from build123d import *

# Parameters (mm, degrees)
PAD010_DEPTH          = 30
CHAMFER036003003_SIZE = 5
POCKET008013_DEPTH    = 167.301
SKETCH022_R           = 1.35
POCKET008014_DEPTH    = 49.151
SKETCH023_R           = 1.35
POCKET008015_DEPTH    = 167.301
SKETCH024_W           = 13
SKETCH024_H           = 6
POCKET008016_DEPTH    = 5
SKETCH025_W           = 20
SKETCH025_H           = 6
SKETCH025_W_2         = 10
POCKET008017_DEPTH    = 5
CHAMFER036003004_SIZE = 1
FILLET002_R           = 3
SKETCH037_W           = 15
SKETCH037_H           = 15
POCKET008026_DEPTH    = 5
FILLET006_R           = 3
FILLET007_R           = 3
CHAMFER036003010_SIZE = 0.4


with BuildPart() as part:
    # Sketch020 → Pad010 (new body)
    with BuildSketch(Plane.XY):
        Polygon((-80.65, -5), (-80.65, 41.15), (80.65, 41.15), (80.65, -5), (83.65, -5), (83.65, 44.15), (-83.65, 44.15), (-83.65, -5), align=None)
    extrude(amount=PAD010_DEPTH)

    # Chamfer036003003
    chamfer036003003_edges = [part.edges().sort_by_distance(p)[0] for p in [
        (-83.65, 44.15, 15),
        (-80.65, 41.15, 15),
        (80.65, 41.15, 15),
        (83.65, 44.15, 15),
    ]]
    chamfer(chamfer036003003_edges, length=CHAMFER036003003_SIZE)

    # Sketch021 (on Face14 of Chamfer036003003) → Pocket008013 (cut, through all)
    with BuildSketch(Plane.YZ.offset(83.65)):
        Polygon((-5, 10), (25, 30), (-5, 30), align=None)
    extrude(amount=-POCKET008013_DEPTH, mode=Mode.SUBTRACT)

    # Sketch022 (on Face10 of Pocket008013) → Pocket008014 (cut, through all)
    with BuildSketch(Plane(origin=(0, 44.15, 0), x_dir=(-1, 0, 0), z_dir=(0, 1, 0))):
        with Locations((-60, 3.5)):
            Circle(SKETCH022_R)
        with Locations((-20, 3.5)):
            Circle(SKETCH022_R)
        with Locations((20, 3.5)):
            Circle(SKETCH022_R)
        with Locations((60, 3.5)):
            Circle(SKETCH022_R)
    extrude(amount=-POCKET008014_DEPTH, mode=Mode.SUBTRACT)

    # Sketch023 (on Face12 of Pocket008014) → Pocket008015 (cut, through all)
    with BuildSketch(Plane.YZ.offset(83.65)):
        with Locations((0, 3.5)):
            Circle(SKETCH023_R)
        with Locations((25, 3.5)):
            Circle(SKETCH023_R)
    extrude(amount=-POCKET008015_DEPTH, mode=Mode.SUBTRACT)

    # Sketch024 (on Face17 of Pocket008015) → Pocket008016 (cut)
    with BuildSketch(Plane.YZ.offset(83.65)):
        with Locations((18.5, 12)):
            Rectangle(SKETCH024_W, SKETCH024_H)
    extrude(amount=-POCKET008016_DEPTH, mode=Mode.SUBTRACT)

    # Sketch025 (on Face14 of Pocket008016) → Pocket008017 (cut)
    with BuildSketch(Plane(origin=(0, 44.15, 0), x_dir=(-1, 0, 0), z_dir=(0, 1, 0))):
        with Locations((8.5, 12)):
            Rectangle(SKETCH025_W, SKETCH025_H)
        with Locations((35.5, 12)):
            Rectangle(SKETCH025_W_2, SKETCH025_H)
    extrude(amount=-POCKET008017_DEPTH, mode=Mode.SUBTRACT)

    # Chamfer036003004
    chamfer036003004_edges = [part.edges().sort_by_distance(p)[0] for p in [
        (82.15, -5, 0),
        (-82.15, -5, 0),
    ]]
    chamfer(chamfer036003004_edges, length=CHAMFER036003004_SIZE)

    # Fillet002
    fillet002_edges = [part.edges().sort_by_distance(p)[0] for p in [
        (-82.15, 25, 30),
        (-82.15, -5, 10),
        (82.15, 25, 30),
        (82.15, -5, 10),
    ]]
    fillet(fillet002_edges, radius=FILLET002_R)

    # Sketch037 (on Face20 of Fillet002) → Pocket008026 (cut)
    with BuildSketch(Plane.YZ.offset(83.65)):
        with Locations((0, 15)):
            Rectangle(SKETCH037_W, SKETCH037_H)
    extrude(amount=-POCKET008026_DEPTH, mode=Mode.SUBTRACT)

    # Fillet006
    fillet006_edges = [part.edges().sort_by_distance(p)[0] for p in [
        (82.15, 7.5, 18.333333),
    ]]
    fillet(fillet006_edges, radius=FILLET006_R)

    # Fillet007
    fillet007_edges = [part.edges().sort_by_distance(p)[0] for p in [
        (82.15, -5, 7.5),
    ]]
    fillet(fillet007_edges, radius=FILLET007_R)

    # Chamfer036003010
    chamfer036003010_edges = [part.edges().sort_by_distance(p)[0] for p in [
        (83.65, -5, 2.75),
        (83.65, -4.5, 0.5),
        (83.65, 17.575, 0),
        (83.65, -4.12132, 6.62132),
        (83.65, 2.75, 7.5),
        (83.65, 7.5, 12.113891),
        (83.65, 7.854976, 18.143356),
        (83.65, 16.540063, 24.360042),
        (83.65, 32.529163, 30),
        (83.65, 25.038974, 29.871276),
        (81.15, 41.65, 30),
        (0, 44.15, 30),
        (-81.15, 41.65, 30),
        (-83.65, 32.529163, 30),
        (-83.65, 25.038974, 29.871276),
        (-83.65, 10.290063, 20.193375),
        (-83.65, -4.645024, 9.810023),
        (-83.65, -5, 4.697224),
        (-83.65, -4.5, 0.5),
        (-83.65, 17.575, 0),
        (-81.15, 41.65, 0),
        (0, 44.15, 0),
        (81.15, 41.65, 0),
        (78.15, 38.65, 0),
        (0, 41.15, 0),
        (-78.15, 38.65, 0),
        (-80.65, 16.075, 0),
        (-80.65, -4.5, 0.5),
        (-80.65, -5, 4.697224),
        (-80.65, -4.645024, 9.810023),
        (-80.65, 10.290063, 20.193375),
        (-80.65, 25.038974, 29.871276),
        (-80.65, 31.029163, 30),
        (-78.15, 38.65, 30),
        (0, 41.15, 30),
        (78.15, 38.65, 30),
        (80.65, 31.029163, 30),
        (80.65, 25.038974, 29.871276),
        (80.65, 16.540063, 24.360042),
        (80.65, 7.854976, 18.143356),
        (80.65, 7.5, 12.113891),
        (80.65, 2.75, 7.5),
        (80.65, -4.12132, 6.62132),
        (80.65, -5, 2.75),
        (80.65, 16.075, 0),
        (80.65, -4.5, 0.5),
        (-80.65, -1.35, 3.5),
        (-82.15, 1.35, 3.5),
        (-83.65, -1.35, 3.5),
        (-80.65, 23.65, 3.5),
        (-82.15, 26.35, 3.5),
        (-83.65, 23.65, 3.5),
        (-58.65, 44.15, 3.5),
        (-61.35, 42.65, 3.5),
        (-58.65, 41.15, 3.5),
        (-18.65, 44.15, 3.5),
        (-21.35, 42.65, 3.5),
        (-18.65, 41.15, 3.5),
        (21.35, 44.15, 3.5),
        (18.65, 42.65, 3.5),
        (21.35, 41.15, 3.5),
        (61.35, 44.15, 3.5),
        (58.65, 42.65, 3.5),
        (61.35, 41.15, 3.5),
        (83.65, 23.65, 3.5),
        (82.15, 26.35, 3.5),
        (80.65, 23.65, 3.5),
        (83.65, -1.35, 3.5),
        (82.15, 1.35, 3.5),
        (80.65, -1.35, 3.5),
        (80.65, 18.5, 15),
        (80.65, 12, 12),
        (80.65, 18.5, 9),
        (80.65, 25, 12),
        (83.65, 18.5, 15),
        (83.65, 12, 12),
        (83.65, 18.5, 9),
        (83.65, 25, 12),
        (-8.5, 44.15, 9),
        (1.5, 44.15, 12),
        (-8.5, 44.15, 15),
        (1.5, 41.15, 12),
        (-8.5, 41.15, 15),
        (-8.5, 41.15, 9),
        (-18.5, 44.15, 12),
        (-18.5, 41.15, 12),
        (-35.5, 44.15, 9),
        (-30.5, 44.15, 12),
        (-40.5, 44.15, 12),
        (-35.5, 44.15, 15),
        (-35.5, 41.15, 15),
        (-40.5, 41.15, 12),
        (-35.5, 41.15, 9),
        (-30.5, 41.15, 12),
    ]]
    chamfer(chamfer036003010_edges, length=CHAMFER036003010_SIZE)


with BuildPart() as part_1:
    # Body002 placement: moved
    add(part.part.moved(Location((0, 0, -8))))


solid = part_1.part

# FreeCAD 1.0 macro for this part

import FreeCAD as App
import Part
import Sketcher

V = App.Vector
Q = App.Units.Quantity


def edges_at(feature, points):
    """Names of the edges that pass closest to the given points."""
    edges = feature.Shape.Edges
    near = lambda p: min(range(len(edges)), key=lambda i: edges[i].distToShape(Part.Vertex(*p))[0])
    return sorted({f"Edge{near(p) + 1}" for p in points})

doc = App.newDocument("Part")
body = doc.addObject("PartDesign::Body", "Body")

sketch1 = body.newObject("Sketcher::SketchObject", "Sketch")
sketch1.AttachmentSupport = (doc.getObject("XY_Plane"), [""])
sketch1.MapMode = "FlatFace"
sketch1.addGeometry([
    Part.LineSegment(V(-80.7, -5, 0), V(-80.7, 41.1, 0)),
    Part.LineSegment(V(-80.7, 41.1, 0), V(80.7, 41.1, 0)),
    Part.LineSegment(V(80.7, 41.1, 0), V(80.7, -5, 0)),
    Part.LineSegment(V(80.7, -5, 0), V(83.7, -5, 0)),
    Part.LineSegment(V(83.7, -5, 0), V(83.7, 44.1, 0)),
    Part.LineSegment(V(83.7, 44.1, 0), V(-83.7, 44.1, 0)),
    Part.LineSegment(V(-83.7, 44.1, 0), V(-83.7, -5, 0)),
    Part.LineSegment(V(-83.7, -5, 0), V(-80.7, -5, 0)),
], False)
sketch1.addConstraint([
    Sketcher.Constraint("Coincident", 0, 2, 1, 1),
    Sketcher.Constraint("Coincident", 1, 2, 2, 1),
    Sketcher.Constraint("Coincident", 2, 2, 3, 1),
    Sketcher.Constraint("Coincident", 3, 2, 4, 1),
    Sketcher.Constraint("Coincident", 4, 2, 5, 1),
    Sketcher.Constraint("Coincident", 5, 2, 6, 1),
    Sketcher.Constraint("Coincident", 6, 2, 7, 1),
    Sketcher.Constraint("Coincident", 7, 2, 0, 1),
    Sketcher.Constraint("Vertical", 0),
    Sketcher.Constraint("Horizontal", 1),
    Sketcher.Constraint("Vertical", 2),
    Sketcher.Constraint("Horizontal", 3),
    Sketcher.Constraint("Vertical", 4),
    Sketcher.Constraint("Horizontal", 5),
    Sketcher.Constraint("Vertical", 6),
    Sketcher.Constraint("Horizontal", 7),
    Sketcher.Constraint("Symmetric", 3, 2, 6, 2, -2),
    Sketcher.Constraint("Equal", 3, 7),
    Sketcher.Constraint("DistanceX", 3, 1, 3, 2, Q("3 mm")),
    Sketcher.Constraint("DistanceX", 1, 1, 1, 2, Q("161.3 mm")),
    Sketcher.Constraint("DistanceY", 2, 2, -1, 1, Q("5 mm")),
    Sketcher.Constraint("DistanceY", 1, 2, 4, 2, Q("3 mm")),
    Sketcher.Constraint("DistanceY", 0, 1, 0, 2, Q("46.15 mm")),
])
pad1 = body.newObject("PartDesign::Pad", "Pad")
pad1.Profile = sketch1
pad1.Length = 30
doc.recompute()

chamfer = body.newObject("PartDesign::Chamfer", "Chamfer")
chamfer.Base = (pad1, edges_at(pad1, [
    (-83.65, 44.15, 15),
    (-80.65, 41.15, 15),
    (80.65, 41.15, 15),
    (83.65, 44.15, 15),
]))
chamfer.Size = 5

sketch2 = body.newObject("Sketcher::SketchObject", "Sketch001")
sketch2.AttachmentSupport = (doc.getObject("YZ_Plane"), [""])
sketch2.MapMode = "FlatFace"
sketch2.AttachmentOffset = App.Placement(V(0, 0, 83.65), App.Rotation())
sketch2.addGeometry([
    Part.LineSegment(V(-5, 10, 0), V(25, 30, 0)),
    Part.LineSegment(V(25, 30, 0), V(-5, 30, 0)),
    Part.LineSegment(V(-5, 30, 0), V(-5, 10, 0)),
], False)
sketch2.addConstraint([
    Sketcher.Constraint("Coincident", 0, 2, 1, 1),
    Sketcher.Constraint("Coincident", 1, 2, 2, 1),
    Sketcher.Constraint("Coincident", 2, 2, 0, 1),
    Sketcher.Constraint("Horizontal", 1),
    Sketcher.Constraint("Vertical", 2),
    Sketcher.Constraint("DistanceX", 1, 2, 1, 1, Q("30 mm")),
    Sketcher.Constraint("DistanceY", 2, 2, 2, 1, Q("20 mm")),
    Sketcher.Constraint("DistanceX", -1, 1, 0, 2, Q("25 mm")),
    Sketcher.Constraint("DistanceY", -1, 1, 0, 2, Q("30 mm")),
])
pocket1 = body.newObject("PartDesign::Pocket", "Pocket")
pocket1.Profile = sketch2
pocket1.Type = "ThroughAll"

sketch3 = body.newObject("Sketcher::SketchObject", "Sketch002")
sketch3.AttachmentSupport = (doc.getObject("XZ_Plane"), [""])
sketch3.MapMode = "FlatFace"
sketch3.AttachmentOffset = App.Placement(V(0, 0, -44.15), App.Rotation())
sketch3.addGeometry([
    Part.Circle(V(60, 3.5, 0), V(0, 0, 1), 1.4),
    Part.Circle(V(20, 3.5, 0), V(0, 0, 1), 1.4),
    Part.Circle(V(-20, 3.5, 0), V(0, 0, 1), 1.4),
    Part.Circle(V(-60, 3.5, 0), V(0, 0, 1), 1.4),
], False)
sketch3.addConstraint([
    Sketcher.Constraint("Equal", 0, 1),
    Sketcher.Constraint("Equal", 1, 2),
    Sketcher.Constraint("Equal", 2, 3),
    Sketcher.Constraint("Symmetric", 1, 3, 2, 3, -2),
    Sketcher.Constraint("Symmetric", 0, 3, 3, 3, -2),
    Sketcher.Constraint("Horizontal", 0, 3, 1, 3),
    Sketcher.Constraint("Diameter", 0, Q("2.7 mm")),
    Sketcher.Constraint("DistanceX", -1, 1, 0, 3, Q("60 mm")),
    Sketcher.Constraint("DistanceX", -1, 1, 1, 3, Q("20 mm")),
    Sketcher.Constraint("DistanceY", -1, 1, 0, 3, Q("3.5 mm")),
])
pocket2 = body.newObject("PartDesign::Pocket", "Pocket001")
pocket2.Profile = sketch3
pocket2.Type = "ThroughAll"
pocket2.Reversed = True

sketch4 = body.newObject("Sketcher::SketchObject", "Sketch003")
sketch4.AttachmentSupport = (doc.getObject("YZ_Plane"), [""])
sketch4.MapMode = "FlatFace"
sketch4.AttachmentOffset = App.Placement(V(0, 0, 83.65), App.Rotation())
sketch4.addGeometry([
    Part.Circle(V(0, 3.5, 0), V(0, 0, 1), 1.4),
    Part.Circle(V(25, 3.5, 0), V(0, 0, 1), 1.4),
], False)
sketch4.addConstraint([
    Sketcher.Constraint("Equal", 0, 1),
    Sketcher.Constraint("PointOnObject", 0, 3, -2),
    Sketcher.Constraint("Horizontal", 0, 3, 1, 3),
    Sketcher.Constraint("Diameter", 0, Q("2.7 mm")),
    Sketcher.Constraint("DistanceX", -1, 1, 1, 3, Q("25 mm")),
    Sketcher.Constraint("DistanceY", -1, 1, 0, 3, Q("3.5 mm")),
])
pocket3 = body.newObject("PartDesign::Pocket", "Pocket002")
pocket3.Profile = sketch4
pocket3.Type = "ThroughAll"

sketch5 = body.newObject("Sketcher::SketchObject", "Sketch004")
sketch5.AttachmentSupport = (doc.getObject("YZ_Plane"), [""])
sketch5.MapMode = "FlatFace"
sketch5.AttachmentOffset = App.Placement(V(0, 0, 83.65), App.Rotation())
sketch5.addGeometry([
    Part.LineSegment(V(12, 15, 0), V(12, 9, 0)),
    Part.LineSegment(V(12, 9, 0), V(25, 9, 0)),
    Part.LineSegment(V(25, 9, 0), V(25, 15, 0)),
    Part.LineSegment(V(25, 15, 0), V(12, 15, 0)),
], False)
sketch5.addConstraint([
    Sketcher.Constraint("Coincident", 0, 2, 1, 1),
    Sketcher.Constraint("Coincident", 1, 2, 2, 1),
    Sketcher.Constraint("Coincident", 2, 2, 3, 1),
    Sketcher.Constraint("Coincident", 3, 2, 0, 1),
    Sketcher.Constraint("Vertical", 0),
    Sketcher.Constraint("Horizontal", 1),
    Sketcher.Constraint("Vertical", 2),
    Sketcher.Constraint("Horizontal", 3),
    Sketcher.Constraint("DistanceX", 1, 1, 1, 2, Q("13 mm")),
    Sketcher.Constraint("DistanceY", 0, 2, 0, 1, Q("6 mm")),
    Sketcher.Constraint("DistanceX", -1, 1, 0, 2, Q("12 mm")),
    Sketcher.Constraint("DistanceY", -1, 1, 0, 2, Q("9 mm")),
])
pocket4 = body.newObject("PartDesign::Pocket", "Pocket003")
pocket4.Profile = sketch5
pocket4.Length = 5

sketch6 = body.newObject("Sketcher::SketchObject", "Sketch005")
sketch6.AttachmentSupport = (doc.getObject("XZ_Plane"), [""])
sketch6.MapMode = "FlatFace"
sketch6.AttachmentOffset = App.Placement(V(0, 0, -44.15), App.Rotation())
sketch6.addGeometry([
    Part.LineSegment(V(2, 15, 0), V(2, 9, 0)),
    Part.LineSegment(V(2, 9, 0), V(-18, 9, 0)),
    Part.LineSegment(V(-18, 9, 0), V(-18, 15, 0)),
    Part.LineSegment(V(-18, 15, 0), V(2, 15, 0)),
    Part.LineSegment(V(-30, 15, 0), V(-30, 9, 0)),
    Part.LineSegment(V(-30, 9, 0), V(-40, 9, 0)),
    Part.LineSegment(V(-40, 9, 0), V(-40, 15, 0)),
    Part.LineSegment(V(-40, 15, 0), V(-30, 15, 0)),
], False)
sketch6.addConstraint([
    Sketcher.Constraint("Coincident", 0, 2, 1, 1),
    Sketcher.Constraint("Coincident", 1, 2, 2, 1),
    Sketcher.Constraint("Coincident", 2, 2, 3, 1),
    Sketcher.Constraint("Coincident", 3, 2, 0, 1),
    Sketcher.Constraint("Coincident", 4, 2, 5, 1),
    Sketcher.Constraint("Coincident", 5, 2, 6, 1),
    Sketcher.Constraint("Coincident", 6, 2, 7, 1),
    Sketcher.Constraint("Coincident", 7, 2, 4, 1),
    Sketcher.Constraint("Vertical", 0),
    Sketcher.Constraint("Horizontal", 1),
    Sketcher.Constraint("Vertical", 2),
    Sketcher.Constraint("Horizontal", 3),
    Sketcher.Constraint("Vertical", 4),
    Sketcher.Constraint("Horizontal", 5),
    Sketcher.Constraint("Vertical", 6),
    Sketcher.Constraint("Horizontal", 7),
    Sketcher.Constraint("Horizontal", 1, 2, 4, 2),
    Sketcher.Constraint("Horizontal", 3, 2, 6, 2),
    Sketcher.Constraint("DistanceX", 1, 2, 1, 1, Q("20 mm")),
    Sketcher.Constraint("DistanceX", 5, 2, 5, 1, Q("10 mm")),
    Sketcher.Constraint("DistanceY", 0, 2, 0, 1, Q("6 mm")),
    Sketcher.Constraint("DistanceY", -1, 1, 0, 2, Q("9 mm")),
    Sketcher.Constraint("DistanceX", 4, 2, 1, 2, Q("12 mm")),
    Sketcher.Constraint("DistanceX", -1, 1, 0, 2, Q("1.5 mm")),
])
pocket5 = body.newObject("PartDesign::Pocket", "Pocket004")
pocket5.Profile = sketch6
pocket5.Length = 5
pocket5.Reversed = True
doc.recompute()

chamfer2 = body.newObject("PartDesign::Chamfer", "Chamfer001")
chamfer2.Base = (pocket5, edges_at(pocket5, [(82.15, -5, 0), (-82.15, -5, 0)]))
chamfer2.Size = 1
doc.recompute()

fillet = body.newObject("PartDesign::Fillet", "Fillet")
fillet.Base = (chamfer2, edges_at(chamfer2, [
    (-82.15, 25, 30),
    (-82.15, -5, 10),
    (82.15, 25, 30),
    (82.15, -5, 10),
]))
fillet.Radius = 3

sketch7 = body.newObject("Sketcher::SketchObject", "Sketch006")
sketch7.AttachmentSupport = (doc.getObject("YZ_Plane"), [""])
sketch7.MapMode = "FlatFace"
sketch7.AttachmentOffset = App.Placement(V(0, 0, 83.65), App.Rotation())
sketch7.addGeometry([
    Part.LineSegment(V(-8, 22, 0), V(-8, 8, 0)),
    Part.LineSegment(V(-8, 8, 0), V(8, 8, 0)),
    Part.LineSegment(V(8, 8, 0), V(8, 22, 0)),
    Part.LineSegment(V(8, 22, 0), V(-8, 22, 0)),
], False)
sketch7.addConstraint([
    Sketcher.Constraint("Coincident", 0, 2, 1, 1),
    Sketcher.Constraint("Coincident", 1, 2, 2, 1),
    Sketcher.Constraint("Coincident", 2, 2, 3, 1),
    Sketcher.Constraint("Coincident", 3, 2, 0, 1),
    Sketcher.Constraint("Vertical", 0),
    Sketcher.Constraint("Horizontal", 1),
    Sketcher.Constraint("Vertical", 2),
    Sketcher.Constraint("Horizontal", 3),
    Sketcher.Constraint("Equal", 3, 0),
    Sketcher.Constraint("DistanceX", 1, 1, 1, 2, Q("15 mm")),
    Sketcher.Constraint("DistanceX", 0, 2, -1, 1, Q("7.5 mm")),
    Sketcher.Constraint("DistanceY", -1, 1, 0, 2, Q("7.5 mm")),
])
pocket6 = body.newObject("PartDesign::Pocket", "Pocket005")
pocket6.Profile = sketch7
pocket6.Length = 5
doc.recompute()

fillet2 = body.newObject("PartDesign::Fillet", "Fillet001")
fillet2.Base = (pocket6, edges_at(pocket6, [(82.15, 7.5, 18.333)]))
fillet2.Radius = 3
doc.recompute()

fillet3 = body.newObject("PartDesign::Fillet", "Fillet002")
fillet3.Base = (fillet2, edges_at(fillet2, [(82.15, -5, 7.5)]))
fillet3.Radius = 3
doc.recompute()

chamfer3 = body.newObject("PartDesign::Chamfer", "Chamfer002")
chamfer3.Base = (fillet3, edges_at(fillet3, [
    (83.65, -5, 2.75),
    (83.65, -4.5, 0.5),
    (83.65, 17.575, 0),
    (83.65, -4.121, 6.621),
    (83.65, 2.75, 7.5),
    (83.65, 7.5, 12.114),
    (83.65, 7.855, 18.143),
    (83.65, 16.54, 24.36),
    (83.65, 32.529, 30),
    (83.65, 25.039, 29.871),
    (81.15, 41.65, 30),
    (0, 44.15, 30),
    (-81.15, 41.65, 30),
    (-83.65, 32.529, 30),
    (-83.65, 25.039, 29.871),
    (-83.65, 10.29, 20.193),
    (-83.65, -4.645, 9.81),
    (-83.65, -5, 4.697),
    (-83.65, -4.5, 0.5),
    (-83.65, 17.575, 0),
    (-81.15, 41.65, 0),
    (0, 44.15, 0),
    (81.15, 41.65, 0),
    (78.15, 38.65, 0),
    (0, 41.15, 0),
    (-78.15, 38.65, 0),
    (-80.65, 16.075, 0),
    (-80.65, -4.5, 0.5),
    (-80.65, -5, 4.697),
    (-80.65, -4.645, 9.81),
    (-80.65, 10.29, 20.193),
    (-80.65, 25.039, 29.871),
    (-80.65, 31.029, 30),
    (-78.15, 38.65, 30),
    (0, 41.15, 30),
    (78.15, 38.65, 30),
    (80.65, 31.029, 30),
    (80.65, 25.039, 29.871),
    (80.65, 16.54, 24.36),
    (80.65, 7.855, 18.143),
    (80.65, 7.5, 12.114),
    (80.65, 2.75, 7.5),
    (80.65, -4.121, 6.621),
    (80.65, -5, 2.75),
    (80.65, 16.075, 0),
    (80.65, -4.5, 0.5),
    (-80.65, -1.35, 3.5),
    (-82.15, 1.35, 3.5),
    (-83.65, -1.35, 3.5),
    (-80.65, 23.65, 3.5),
    (-82.15, 26.35, 3.5),
    (-83.65, 23.65, 3.5),
    (-58.65, 44.15, 3.5),
    (-61.35, 42.65, 3.5),
    (-58.65, 41.15, 3.5),
    (-18.65, 44.15, 3.5),
    (-21.35, 42.65, 3.5),
    (-18.65, 41.15, 3.5),
    (21.35, 44.15, 3.5),
    (18.65, 42.65, 3.5),
    (21.35, 41.15, 3.5),
    (61.35, 44.15, 3.5),
    (58.65, 42.65, 3.5),
    (61.35, 41.15, 3.5),
    (83.65, 23.65, 3.5),
    (82.15, 26.35, 3.5),
    (80.65, 23.65, 3.5),
    (83.65, -1.35, 3.5),
    (82.15, 1.35, 3.5),
    (80.65, -1.35, 3.5),
    (80.65, 18.5, 15),
    (80.65, 12, 12),
    (80.65, 18.5, 9),
    (80.65, 25, 12),
    (83.65, 18.5, 15),
    (83.65, 12, 12),
    (83.65, 18.5, 9),
    (83.65, 25, 12),
    (-8.5, 44.15, 9),
    (1.5, 44.15, 12),
    (-8.5, 44.15, 15),
    (1.5, 41.15, 12),
    (-8.5, 41.15, 15),
    (-8.5, 41.15, 9),
    (-18.5, 44.15, 12),
    (-18.5, 41.15, 12),
    (-35.5, 44.15, 9),
    (-30.5, 44.15, 12),
    (-40.5, 44.15, 12),
    (-35.5, 44.15, 15),
    (-35.5, 41.15, 15),
    (-40.5, 41.15, 12),
    (-35.5, 41.15, 9),
    (-30.5, 41.15, 12),
]))
chamfer3.Size = 0.4
body2 = doc.addObject("PartDesign::Body", "Body001")
doc.recompute()

body.Placement = App.Placement(V(0, 0, -8), App.Rotation(V(0, 0, 1), 0))
boolean = body2.newObject("PartDesign::Boolean", "Boolean")
boolean.Type = "Fuse"
boolean.addObjects([body])

doc.recompute()
